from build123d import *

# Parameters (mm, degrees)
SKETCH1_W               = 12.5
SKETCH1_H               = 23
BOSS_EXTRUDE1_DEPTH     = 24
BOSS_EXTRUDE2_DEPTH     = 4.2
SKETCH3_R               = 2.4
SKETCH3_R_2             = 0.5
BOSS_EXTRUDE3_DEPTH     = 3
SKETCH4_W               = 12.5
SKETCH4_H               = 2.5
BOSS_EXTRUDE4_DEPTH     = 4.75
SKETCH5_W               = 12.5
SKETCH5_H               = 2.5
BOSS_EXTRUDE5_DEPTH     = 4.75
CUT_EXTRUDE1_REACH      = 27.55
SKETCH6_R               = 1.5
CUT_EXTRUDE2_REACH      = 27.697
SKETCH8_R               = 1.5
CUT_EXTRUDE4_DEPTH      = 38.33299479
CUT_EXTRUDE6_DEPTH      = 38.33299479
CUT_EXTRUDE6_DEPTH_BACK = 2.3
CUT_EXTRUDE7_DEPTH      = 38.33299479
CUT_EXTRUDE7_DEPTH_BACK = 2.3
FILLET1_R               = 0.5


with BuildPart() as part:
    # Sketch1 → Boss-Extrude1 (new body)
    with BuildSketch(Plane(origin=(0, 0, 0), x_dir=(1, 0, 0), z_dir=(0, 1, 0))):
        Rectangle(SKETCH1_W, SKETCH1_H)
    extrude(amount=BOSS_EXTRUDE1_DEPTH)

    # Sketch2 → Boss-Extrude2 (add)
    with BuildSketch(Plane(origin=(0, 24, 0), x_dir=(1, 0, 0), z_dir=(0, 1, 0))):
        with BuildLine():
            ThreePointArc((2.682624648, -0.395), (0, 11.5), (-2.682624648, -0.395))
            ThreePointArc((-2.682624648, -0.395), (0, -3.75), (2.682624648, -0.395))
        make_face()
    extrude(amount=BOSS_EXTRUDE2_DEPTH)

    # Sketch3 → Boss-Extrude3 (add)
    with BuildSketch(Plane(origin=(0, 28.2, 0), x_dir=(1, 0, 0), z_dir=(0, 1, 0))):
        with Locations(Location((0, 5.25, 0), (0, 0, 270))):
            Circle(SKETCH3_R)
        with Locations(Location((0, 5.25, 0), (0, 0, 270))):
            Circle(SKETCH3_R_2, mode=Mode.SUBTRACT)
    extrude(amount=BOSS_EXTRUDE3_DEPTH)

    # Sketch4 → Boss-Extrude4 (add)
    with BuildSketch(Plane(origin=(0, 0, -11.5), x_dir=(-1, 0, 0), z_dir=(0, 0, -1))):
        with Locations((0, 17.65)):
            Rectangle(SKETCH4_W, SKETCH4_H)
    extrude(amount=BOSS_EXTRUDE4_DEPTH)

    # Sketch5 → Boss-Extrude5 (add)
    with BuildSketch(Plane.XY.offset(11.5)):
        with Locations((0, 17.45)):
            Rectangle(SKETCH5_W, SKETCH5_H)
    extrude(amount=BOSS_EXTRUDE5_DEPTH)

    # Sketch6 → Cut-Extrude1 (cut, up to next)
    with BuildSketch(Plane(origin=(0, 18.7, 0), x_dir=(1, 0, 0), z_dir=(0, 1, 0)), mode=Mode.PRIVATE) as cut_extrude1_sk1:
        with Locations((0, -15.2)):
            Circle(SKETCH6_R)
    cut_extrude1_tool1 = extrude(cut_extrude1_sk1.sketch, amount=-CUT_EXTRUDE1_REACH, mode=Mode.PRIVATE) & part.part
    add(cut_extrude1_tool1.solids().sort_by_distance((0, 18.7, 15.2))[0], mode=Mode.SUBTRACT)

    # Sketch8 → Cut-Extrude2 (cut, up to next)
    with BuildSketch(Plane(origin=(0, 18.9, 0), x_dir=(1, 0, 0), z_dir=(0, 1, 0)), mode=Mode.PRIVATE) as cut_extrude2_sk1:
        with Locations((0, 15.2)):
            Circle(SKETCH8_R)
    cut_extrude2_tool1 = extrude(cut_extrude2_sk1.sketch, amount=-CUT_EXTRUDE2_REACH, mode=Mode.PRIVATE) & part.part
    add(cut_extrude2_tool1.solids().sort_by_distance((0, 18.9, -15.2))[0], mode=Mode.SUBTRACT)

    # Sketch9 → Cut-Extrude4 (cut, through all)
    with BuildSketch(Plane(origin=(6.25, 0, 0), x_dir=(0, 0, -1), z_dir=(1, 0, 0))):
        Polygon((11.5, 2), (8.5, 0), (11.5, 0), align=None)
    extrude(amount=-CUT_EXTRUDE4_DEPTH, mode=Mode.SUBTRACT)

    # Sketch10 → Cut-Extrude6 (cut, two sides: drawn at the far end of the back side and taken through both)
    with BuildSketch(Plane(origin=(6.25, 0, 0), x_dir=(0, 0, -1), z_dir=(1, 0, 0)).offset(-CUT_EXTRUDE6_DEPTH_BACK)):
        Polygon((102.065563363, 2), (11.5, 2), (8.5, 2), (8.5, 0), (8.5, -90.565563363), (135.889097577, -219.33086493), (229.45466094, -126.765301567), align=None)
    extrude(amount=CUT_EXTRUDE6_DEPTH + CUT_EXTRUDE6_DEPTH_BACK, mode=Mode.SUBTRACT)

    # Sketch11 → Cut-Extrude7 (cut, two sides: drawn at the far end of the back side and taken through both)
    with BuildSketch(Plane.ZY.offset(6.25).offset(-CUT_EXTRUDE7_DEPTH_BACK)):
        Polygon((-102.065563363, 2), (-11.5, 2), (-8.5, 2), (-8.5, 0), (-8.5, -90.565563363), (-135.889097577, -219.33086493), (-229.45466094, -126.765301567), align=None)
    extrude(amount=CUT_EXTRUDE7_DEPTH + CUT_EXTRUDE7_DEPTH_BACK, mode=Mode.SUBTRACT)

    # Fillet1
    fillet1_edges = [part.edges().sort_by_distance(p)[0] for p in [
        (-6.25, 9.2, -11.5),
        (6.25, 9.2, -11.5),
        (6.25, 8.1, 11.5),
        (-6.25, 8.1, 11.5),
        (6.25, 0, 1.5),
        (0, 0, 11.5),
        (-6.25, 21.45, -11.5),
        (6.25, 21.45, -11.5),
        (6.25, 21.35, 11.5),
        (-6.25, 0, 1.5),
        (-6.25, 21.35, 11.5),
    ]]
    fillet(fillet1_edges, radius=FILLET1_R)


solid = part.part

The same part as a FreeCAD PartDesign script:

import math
import FreeCAD as App
import Part
import Sketcher
from FreeCAD import Vector


def edges_at(feature, points):
    """Names of the edges that pass closest to the given points."""
    edges = feature.Shape.Edges
    near = lambda p: min(range(len(edges)), key=lambda i: edges[i].distToShape(Part.Vertex(*p))[0])
    return sorted({f"Edge{near(p) + 1}" for p in points})

doc = App.newDocument("Part")
params = doc.addObject("Spreadsheet::Sheet", "Params")
for row, (alias, value) in enumerate([
    ("sketch1_height", "23 mm"),
    ("sketch1_width", "12.5 mm"),
    ("pad1_length", "24 mm"),
    ("sketch2_radius", "6.25 mm"),
    ("sketch2_radius2", "2.75 mm"),
    ("pad2_length", "4.2 mm"),
    ("sketch3_diameter", "1 mm"),
    ("sketch3_diameter2", "4.8 mm"),
    ("pad3_length", "3 mm"),
    ("sketch4_width", "12.5 mm"),
    ("sketch4_height", "2.5 mm"),
    ("pad4_length", "4.75 mm"),
    ("sketch5_width", "12.5 mm"),
    ("sketch5_height", "2.5 mm"),
    ("pad5_length", "4.75 mm"),
    ("sketch6_diameter", "3 mm"),
    ("sketch7_diameter", "3 mm"),
    ("sketch8_width", "2 mm"),
    ("sketch8_height", "3 mm"),
    ("pocket4_length", "38.332995 mm"),
    ("pocket4_length2", "2.3 mm"),
    ("pocket5_length", "38.332995 mm"),
    ("pocket5_length2", "2.3 mm"),
    ("fillet_radius", "0.5 mm"),
], start=1):
    params.set(f"A{row}", alias)
    params.set(f"B{row}", "=" + value)
    params.setAlias(f"B{row}", alias)

body = doc.addObject("PartDesign::Body", "Body")

# Sketch on XZ plane
sketch1 = body.newObject("Sketcher::SketchObject", "Sketch")
sketch1.AttachmentSupport = (doc.getObject("XZ_Plane"), [""])
sketch1.MapMode = "FlatFace"
sketch1.addGeometry([
    Part.LineSegment(Vector(-6, -12, 0), Vector(-6, 12, 0)),
    Part.LineSegment(Vector(-6, 12, 0), Vector(6, 12, 0)),
    Part.LineSegment(Vector(6, 12, 0), Vector(6, -12, 0)),
    Part.LineSegment(Vector(6, -12, 0), Vector(-6, -12, 0)),
], False)
sketch1.addConstraint([
    Sketcher.Constraint("Coincident", 0, 2, 1, 1),
    Sketcher.Constraint("Coincident", 1, 2, 2, 1),
    Sketcher.Constraint("Coincident", 2, 2, 3, 1),
    Sketcher.Constraint("Coincident", 3, 2, 0, 1),
    Sketcher.Constraint("Vertical", 0),
    Sketcher.Constraint("Horizontal", 1),
    Sketcher.Constraint("Vertical", 2),
    Sketcher.Constraint("Horizontal", 3),
    Sketcher.Constraint("Symmetric", 0, 2, 2, 2, -1, 1),
    Sketcher.Constraint("DistanceY", 0, 1, 0, 2, 23.0),
    Sketcher.Constraint("DistanceX", 1, 1, 1, 2, 12.5),
])
sketch1.setExpression("Constraints[9]", "Params.sketch1_height")
sketch1.setExpression("Constraints[10]", "Params.sketch1_width")
pad1 = body.newObject("PartDesign::Pad", "Pad")
pad1.Profile = sketch1
pad1.setExpression("Length", "Params.pad1_length")
pad1.Reversed = True

# Sketch on XZ plane
sketch2 = body.newObject("Sketcher::SketchObject", "Sketch001")
sketch2.AttachmentSupport = (doc.getObject("XZ_Plane"), [""])
sketch2.MapMode = "FlatFace"
sketch2.AttachmentOffset = App.Placement(Vector(0, 0, -24), App.Rotation())
sketch2.addGeometry([
    Part.ArcOfCircle(Part.Circle(Vector(0, -5.2, 0), Vector(0, 0, 1), 6.2), math.radians(115), math.radians(425)),
    Part.ArcOfCircle(Part.Circle(Vector(0, 1, 0), Vector(0, 0, 1), 2.8), math.radians(-13), math.radians(193)),
], False)
sketch2.addConstraint([
    Sketcher.Constraint("Coincident", 0, 1, 1, 2),
    Sketcher.Constraint("Coincident", 1, 1, 0, 2),
    Sketcher.Constraint("Symmetric", 0, 1, 1, 1, -2),
    Sketcher.Constraint("Radius", 0, 6.25),
    Sketcher.Constraint("Radius", 1, 2.75),
    Sketcher.Constraint("DistanceY", -1, 1, 1, 3, 1.0),
    Sketcher.Constraint("DistanceY", 0, 3, -1, 1, 5.25),
])
sketch2.setExpression("Constraints[3]", "Params.sketch2_radius")
sketch2.setExpression("Constraints[4]", "Params.sketch2_radius2")
pad2 = body.newObject("PartDesign::Pad", "Pad001")
pad2.Profile = sketch2
pad2.setExpression("Length", "Params.pad2_length")
pad2.Reversed = True

# Sketch on XZ plane
sketch3 = body.newObject("Sketcher::SketchObject", "Sketch002")
sketch3.AttachmentSupport = (doc.getObject("XZ_Plane"), [""])
sketch3.MapMode = "FlatFace"
sketch3.AttachmentOffset = App.Placement(Vector(0, 0, -28.2), App.Rotation())
sketch3.addGeometry([
    Part.Circle(Vector(0, -5.2, 0), Vector(0, 0, 1), 2.4),
    Part.Circle(Vector(0, -5.2, 0), Vector(0, 0, 1), 0.5),
], False)
sketch3.addConstraint([
    Sketcher.Constraint("Coincident", 1, 3, 0, 3),
    Sketcher.Constraint("PointOnObject", 0, 3, -2),
    Sketcher.Constraint("Diameter", 1, 1.0),
    Sketcher.Constraint("Diameter", 0, 4.8),
    Sketcher.Constraint("DistanceY", 0, 3, -1, 1, 5.25),
])
sketch3.setExpression("Constraints[2]", "Params.sketch3_diameter")
sketch3.setExpression("Constraints[3]", "Params.sketch3_diameter2")
pad3 = body.newObject("PartDesign::Pad", "Pad002")
pad3.Profile = sketch3
pad3.setExpression("Length", "Params.pad3_length")
pad3.Reversed = True

# Sketch on XY plane
sketch4 = body.newObject("Sketcher::SketchObject", "Sketch003")
sketch4.AttachmentSupport = (doc.getObject("XY_Plane"), [""])
sketch4.MapMode = "FlatFace"
sketch4.AttachmentOffset = App.Placement(Vector(0, 0, -11.5), App.Rotation())
sketch4.addGeometry([
    Part.LineSegment(Vector(6.2, 18.9, 0), Vector(6.2, 16.4, 0)),
    Part.LineSegment(Vector(6.2, 16.4, 0), Vector(-6.2, 16.4, 0)),
    Part.LineSegment(Vector(-6.2, 16.4, 0), Vector(-6.2, 18.9, 0)),
    Part.LineSegment(Vector(-6.2, 18.9, 0), Vector(6.2, 18.9, 0)),
], False)
sketch4.addConstraint([
    Sketcher.Constraint("Coincident", 0, 2, 1, 1),
    Sketcher.Constraint("Coincident", 1, 2, 2, 1),
    Sketcher.Constraint("Coincident", 2, 2, 3, 1),
    Sketcher.Constraint("Coincident", 3, 2, 0, 1),
    Sketcher.Constraint("Vertical", 0),
    Sketcher.Constraint("Horizontal", 1),
    Sketcher.Constraint("Vertical", 2),
    Sketcher.Constraint("Horizontal", 3),
    Sketcher.Constraint("DistanceX", 1, 2, 1, 1, 12.5),
    Sketcher.Constraint("DistanceY", 0, 2, 0, 1, 2.5),
    Sketcher.Constraint("DistanceY", -1, 1, 0, 2, 16.4),
    Sketcher.Constraint("DistanceX", -1, 1, 0, 2, 6.25),
])
sketch4.setExpression("Constraints[8]", "Params.sketch4_width")
sketch4.setExpression("Constraints[9]", "Params.sketch4_height")
pad4 = body.newObject("PartDesign::Pad", "Pad003")
pad4.Profile = sketch4
pad4.setExpression("Length", "Params.pad4_length")
pad4.Reversed = True

# Sketch on XY plane
sketch5 = body.newObject("Sketcher::SketchObject", "Sketch004")
sketch5.AttachmentSupport = (doc.getObject("XY_Plane"), [""])
sketch5.MapMode = "FlatFace"
sketch5.AttachmentOffset = App.Placement(Vector(0, 0, 11.5), App.Rotation())
sketch5.addGeometry([
    Part.LineSegment(Vector(-6.2, 18.7, 0), Vector(-6.2, 16.2, 0)),
    Part.LineSegment(Vector(-6.2, 16.2, 0), Vector(6.2, 16.2, 0)),
    Part.LineSegment(Vector(6.2, 16.2, 0), Vector(6.2, 18.7, 0)),
    Part.LineSegment(Vector(6.2, 18.7, 0), Vector(-6.2, 18.7, 0)),
], False)
sketch5.addConstraint([
    Sketcher.Constraint("Coincident", 0, 2, 1, 1),
    Sketcher.Constraint("Coincident", 1, 2, 2, 1),
    Sketcher.Constraint("Coincident", 2, 2, 3, 1),
    Sketcher.Constraint("Coincident", 3, 2, 0, 1),
    Sketcher.Constraint("Vertical", 0),
    Sketcher.Constraint("Horizontal", 1),
    Sketcher.Constraint("Vertical", 2),
    Sketcher.Constraint("Horizontal", 3),
    Sketcher.Constraint("DistanceX", 1, 1, 1, 2, 12.5),
    Sketcher.Constraint("DistanceY", 0, 2, 0, 1, 2.5),
    Sketcher.Constraint("DistanceY", -1, 1, 0, 2, 16.2),
    Sketcher.Constraint("DistanceX", 0, 2, -1, 1, 6.25),
])
sketch5.setExpression("Constraints[8]", "Params.sketch5_width")
sketch5.setExpression("Constraints[9]", "Params.sketch5_height")
pad5 = body.newObject("PartDesign::Pad", "Pad004")
pad5.Profile = sketch5
pad5.setExpression("Length", "Params.pad5_length")

# Sketch on XZ plane
sketch6 = body.newObject("Sketcher::SketchObject", "Sketch005")
sketch6.AttachmentSupport = (doc.getObject("XZ_Plane"), [""])
sketch6.MapMode = "FlatFace"
sketch6.AttachmentOffset = App.Placement(Vector(0, 0, -18.7), App.Rotation())
sketch6.addGeometry(Part.Circle(Vector(0, 15.2, 0), Vector(0, 0, 1), 1.5), False)
sketch6.addConstraint([
    Sketcher.Constraint("PointOnObject", 0, 3, -2),
    Sketcher.Constraint("Diameter", 0, 3.0),
    Sketcher.Constraint("DistanceY", -1, 1, 0, 3, 15.2),
])
sketch6.setExpression("Constraints[1]", "Params.sketch6_diameter")
pocket1 = body.newObject("PartDesign::Pocket", "Pocket")
pocket1.Profile = sketch6
pocket1.Type = "UpToFirst"
pocket1.Reversed = True

# Sketch on XZ plane
sketch7 = body.newObject("Sketcher::SketchObject", "Sketch006")
sketch7.AttachmentSupport = (doc.getObject("XZ_Plane"), [""])
sketch7.MapMode = "FlatFace"
sketch7.AttachmentOffset = App.Placement(Vector(0, 0, -18.9), App.Rotation())
sketch7.addGeometry(Part.Circle(Vector(0, -15.2, 0), Vector(0, 0, 1), 1.5), False)
sketch7.addConstraint([
    Sketcher.Constraint("PointOnObject", 0, 3, -2),
    Sketcher.Constraint("Diameter", 0, 3.0),
    Sketcher.Constraint("DistanceY", 0, 3, -1, 1, 15.2),
])
sketch7.setExpression("Constraints[1]", "Params.sketch7_diameter")
pocket2 = body.newObject("PartDesign::Pocket", "Pocket001")
pocket2.Profile = sketch7
pocket2.Type = "UpToFirst"
pocket2.Reversed = True

# Sketch on YZ plane
sketch8 = body.newObject("Sketcher::SketchObject", "Sketch007")
sketch8.AttachmentSupport = (doc.getObject("YZ_Plane"), [""])
sketch8.MapMode = "FlatFace"
sketch8.AttachmentOffset = App.Placement(Vector(0, 0, 6.25), App.Rotation())
sketch8.addGeometry([
    Part.LineSegment(Vector(2, -11.5, 0), Vector(0, -8.5, 0)),
    Part.LineSegment(Vector(0, -8.5, 0), Vector(0, -11.5, 0)),
    Part.LineSegment(Vector(0, -11.5, 0), Vector(2, -11.5, 0)),
], False)
sketch8.addConstraint([
    Sketcher.Constraint("Coincident", 0, 2, 1, 1),
    Sketcher.Constraint("Coincident", 1, 2, 2, 1),
    Sketcher.Constraint("Coincident", 2, 2, 0, 1),
    Sketcher.Constraint("Vertical", 1),
    Sketcher.Constraint("Horizontal", 2),
    Sketcher.Constraint("PointOnObject", 0, 2, -2),
    Sketcher.Constraint("DistanceX", 2, 1, 2, 2, 2.0),
    Sketcher.Constraint("DistanceY", 1, 2, 1, 1, 3.0),
    Sketcher.Constraint("DistanceY", 0, 2, -1, 1, 8.5),
])
sketch8.setExpression("Constraints[6]", "Params.sketch8_width")
sketch8.setExpression("Constraints[7]", "Params.sketch8_height")
pocket3 = body.newObject("PartDesign::Pocket", "Pocket002")
pocket3.Profile = sketch8
pocket3.Type = "ThroughAll"

# Sketch on YZ plane
sketch9 = body.newObject("Sketcher::SketchObject", "Sketch008")
sketch9.AttachmentSupport = (doc.getObject("YZ_Plane"), [""])
sketch9.MapMode = "FlatFace"
sketch9.AttachmentOffset = App.Placement(Vector(0, 0, 6.25), App.Rotation())
sketch9.addGeometry([
    Part.LineSegment(Vector(2, -102, 0), Vector(2, -8, 0)),  # 0
    Part.LineSegment(Vector(2, -8, 0), Vector(-91, -8, 0)),  # 1
    Part.LineSegment(Vector(-91, -8, 0), Vector(-219, -136, 0)),  # 2
    Part.LineSegment(Vector(-219, -136, 0), Vector(-127, -229, 0)),  # 3
    Part.LineSegment(Vector(-127, -229, 0), Vector(2, -102, 0)),  # 4
], False)
sketch9.addConstraint([
    Sketcher.Constraint("Coincident", 0, 2, 1, 1),
    Sketcher.Constraint("Coincident", 1, 2, 2, 1),
    Sketcher.Constraint("Coincident", 2, 2, 3, 1),
    Sketcher.Constraint("Coincident", 3, 2, 4, 1),
    Sketcher.Constraint("Coincident", 4, 2, 0, 1),
    Sketcher.Constraint("Vertical", 0),
    Sketcher.Constraint("Horizontal", 1),
    Sketcher.Constraint("Perpendicular", 2, 3),
    Sketcher.Constraint("Perpendicular", 3, 4),
    Sketcher.Constraint("Equal", 2, 4),
    Sketcher.Constraint("DistanceX", -1, 1, 0, 2, 2.0),
    Sketcher.Constraint("DistanceY", 0, 2, -1, 1, 8.5),
    Sketcher.Constraint("DistanceX", 3, 2, -1, 1, 126.765302),
    Sketcher.Constraint("Distance", 3, 131.616481),
    Sketcher.Constraint("DistanceX", 1, 2, 1, 1, 92.565563),
])
pocket4 = body.newObject("PartDesign::Pocket", "Pocket003")
pocket4.Profile = sketch9
pocket4.Type = "TwoLengths"
pocket4.setExpression("Length", "Params.pocket4_length")
pocket4.setExpression("Length2", "Params.pocket4_length2")
pocket4.Reversed = True

# Sketch on YZ plane
sketch10 = body.newObject("Sketcher::SketchObject", "Sketch009")
sketch10.AttachmentSupport = (doc.getObject("YZ_Plane"), [""])
sketch10.MapMode = "FlatFace"
sketch10.AttachmentOffset = App.Placement(Vector(0, 0, -6.25), App.Rotation())
sketch10.addGeometry([
    Part.LineSegment(Vector(2, -8, 0), Vector(2, -102, 0)),  # 0
    Part.LineSegment(Vector(2, -102, 0), Vector(-127, -229, 0)),  # 1
    Part.LineSegment(Vector(-127, -229, 0), Vector(-219, -136, 0)),  # 2
    Part.LineSegment(Vector(-219, -136, 0), Vector(-91, -8, 0)),  # 3
    Part.LineSegment(Vector(-91, -8, 0), Vector(2, -8, 0)),  # 4
], False)
sketch10.addConstraint([
    Sketcher.Constraint("Coincident", 0, 2, 1, 1),
    Sketcher.Constraint("Coincident", 1, 2, 2, 1),
    Sketcher.Constraint("Coincident", 2, 2, 3, 1),
    Sketcher.Constraint("Coincident", 3, 2, 4, 1),
    Sketcher.Constraint("Coincident", 4, 2, 0, 1),
    Sketcher.Constraint("Vertical", 0),
    Sketcher.Constraint("Horizontal", 4),
    Sketcher.Constraint("Perpendicular", 1, 2),
    Sketcher.Constraint("Perpendicular", 2, 3),
    Sketcher.Constraint("Equal", 1, 3),
    Sketcher.Constraint("DistanceX", -1, 1, 0, 2, 2.0),
    Sketcher.Constraint("DistanceY", 3, 2, -1, 1, 8.5),
    Sketcher.Constraint("DistanceX", 1, 2, -1, 1, 126.765302),
    Sketcher.Constraint("Distance", 2, 131.616481),
    Sketcher.Constraint("DistanceX", 4, 1, 4, 2, 92.565563),
])
pocket5 = body.newObject("PartDesign::Pocket", "Pocket004")
pocket5.Profile = sketch10
pocket5.Type = "TwoLengths"
pocket5.setExpression("Length", "Params.pocket5_length")
pocket5.setExpression("Length2", "Params.pocket5_length2")
doc.recompute()

fillet = body.newObject("PartDesign::Fillet", "Fillet")
fillet.Base = (pocket5, edges_at(pocket5, [
    (-6.25, 9.2, -11.5),
    (6.25, 9.2, -11.5),
    (6.25, 8.1, 11.5),
    (-6.25, 8.1, 11.5),
    (6.25, 0, 1.5),
    (0, 0, 11.5),
    (-6.25, 21.45, -11.5),
    (6.25, 21.45, -11.5),
    (6.25, 21.35, 11.5),
    (-6.25, 0, 1.5),
    (-6.25, 21.35, 11.5),
]))
fillet.setExpression("Radius", "Params.fillet_radius")

doc.recompute()
